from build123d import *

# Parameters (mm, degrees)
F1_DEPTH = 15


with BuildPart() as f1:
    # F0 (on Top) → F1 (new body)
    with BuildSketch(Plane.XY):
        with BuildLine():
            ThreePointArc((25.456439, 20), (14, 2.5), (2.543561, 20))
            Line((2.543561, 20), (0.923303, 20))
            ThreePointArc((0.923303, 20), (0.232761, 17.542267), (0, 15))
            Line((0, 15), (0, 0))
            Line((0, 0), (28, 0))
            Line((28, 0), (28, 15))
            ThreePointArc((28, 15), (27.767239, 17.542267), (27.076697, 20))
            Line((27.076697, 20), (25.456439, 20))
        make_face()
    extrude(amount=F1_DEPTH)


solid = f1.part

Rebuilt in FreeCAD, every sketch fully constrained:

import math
import FreeCAD as App
import Part
import Sketcher
from FreeCAD import Vector
Q = App.Units.Quantity

doc = App.newDocument("Part")
body = doc.addObject("PartDesign::Body", "Body")

# Sketch on XY plane
sketch1 = body.newObject("Sketcher::SketchObject", "Sketch")
sketch1.AttachmentSupport = (doc.getObject("XY_Plane"), [""])
sketch1.MapMode = "FlatFace"
sketch1.addGeometry(Part.ArcOfCircle(Part.Circle(Vector(14, 15, 0), Vector(0, 0, 1), 12.5), math.radians(156.42182), math.radians(383.57818)), False)
sketch1.addGeometry(Part.LineSegment(Vector(2.543561, 20, 0), Vector(0.923303, 20, 0)), False)
sketch1.addGeometry(Part.ArcOfCircle(Part.Circle(Vector(14.000023, 14.999996, 0), Vector(0, 0, 1), 14.000023), math.radians(159.075187), math.radians(179.999984)), False)
sketch1.addGeometry(Part.LineSegment(Vector(0, 15, 0), Vector(0, 0, 0)), False)
sketch1.addGeometry(Part.LineSegment(Vector(0, 0, 0), Vector(28, 0, 0)), False)
sketch1.addGeometry(Part.LineSegment(Vector(28, 0, 0), Vector(28, 15, 0)), False)
sketch1.addGeometry(Part.ArcOfCircle(Part.Circle(Vector(13.999977, 14.999996, 0), Vector(0, 0, 1), 14.000023), math.radians(0.000016), math.radians(20.924813)), False)
sketch1.addGeometry(Part.LineSegment(Vector(27.076697, 20, 0), Vector(25.456439, 20, 0)), False)
sketch1.addConstraint(Sketcher.Constraint("Coincident", 0, 1, 1, 1))
sketch1.addConstraint(Sketcher.Constraint("Coincident", 1, 2, 2, 1))
sketch1.addConstraint(Sketcher.Constraint("Tangent", 2, 2, 3, 1))
sketch1.addConstraint(Sketcher.Constraint("Coincident", 3, 2, 4, 1))
sketch1.addConstraint(Sketcher.Constraint("Coincident", 4, 2, 5, 1))
sketch1.addConstraint(Sketcher.Constraint("Tangent", 5, 2, 6, 1))
sketch1.addConstraint(Sketcher.Constraint("Coincident", 6, 2, 7, 1))
sketch1.addConstraint(Sketcher.Constraint("Coincident", 7, 2, 0, 2))
sketch1.addConstraint(Sketcher.Constraint("Horizontal", 1))
sketch1.addConstraint(Sketcher.Constraint("Vertical", 3))
sketch1.addConstraint(Sketcher.Constraint("Horizontal", 4))
sketch1.addConstraint(Sketcher.Constraint("Vertical", 5))
sketch1.addConstraint(Sketcher.Constraint("Horizontal", 7))
sketch1.addConstraint(Sketcher.Constraint("Coincident", 3, 2, -1, 1))
sketch1.addConstraint(Sketcher.Constraint("Equal", 2, 6))
sketch1.addConstraint(Sketcher.Constraint("Horizontal", 2, 3, 6, 3))
sketch1.addConstraint(Sketcher.Constraint("Horizontal", 0, 3, 2, 2))
sketch1.addConstraint(Sketcher.Constraint("Horizontal", 1, 2, 6, 2))
sketch1.addConstraint(Sketcher.Constraint("Equal", 1, 7))
sketch1.addConstraint(Sketcher.Constraint("Radius", 0, Q("12.5 mm")))
sketch1.addConstraint(Sketcher.Constraint("DistanceX", 4, 1, 4, 2, Q("28 mm")))
sketch1.addConstraint(Sketcher.Constraint("DistanceY", 3, 2, 3, 1, Q("15 mm")))
sketch1.addConstraint(Sketcher.Constraint("DistanceY", -1, 1, 0, 1, Q("20 mm")))
sketch1.addConstraint(Sketcher.Constraint("Radius", 2, Q("14.000023 mm")))
pad1 = body.newObject("PartDesign::Pad", "Pad")
pad1.Profile = sketch1
pad1.Length = 15

doc.recompute()
